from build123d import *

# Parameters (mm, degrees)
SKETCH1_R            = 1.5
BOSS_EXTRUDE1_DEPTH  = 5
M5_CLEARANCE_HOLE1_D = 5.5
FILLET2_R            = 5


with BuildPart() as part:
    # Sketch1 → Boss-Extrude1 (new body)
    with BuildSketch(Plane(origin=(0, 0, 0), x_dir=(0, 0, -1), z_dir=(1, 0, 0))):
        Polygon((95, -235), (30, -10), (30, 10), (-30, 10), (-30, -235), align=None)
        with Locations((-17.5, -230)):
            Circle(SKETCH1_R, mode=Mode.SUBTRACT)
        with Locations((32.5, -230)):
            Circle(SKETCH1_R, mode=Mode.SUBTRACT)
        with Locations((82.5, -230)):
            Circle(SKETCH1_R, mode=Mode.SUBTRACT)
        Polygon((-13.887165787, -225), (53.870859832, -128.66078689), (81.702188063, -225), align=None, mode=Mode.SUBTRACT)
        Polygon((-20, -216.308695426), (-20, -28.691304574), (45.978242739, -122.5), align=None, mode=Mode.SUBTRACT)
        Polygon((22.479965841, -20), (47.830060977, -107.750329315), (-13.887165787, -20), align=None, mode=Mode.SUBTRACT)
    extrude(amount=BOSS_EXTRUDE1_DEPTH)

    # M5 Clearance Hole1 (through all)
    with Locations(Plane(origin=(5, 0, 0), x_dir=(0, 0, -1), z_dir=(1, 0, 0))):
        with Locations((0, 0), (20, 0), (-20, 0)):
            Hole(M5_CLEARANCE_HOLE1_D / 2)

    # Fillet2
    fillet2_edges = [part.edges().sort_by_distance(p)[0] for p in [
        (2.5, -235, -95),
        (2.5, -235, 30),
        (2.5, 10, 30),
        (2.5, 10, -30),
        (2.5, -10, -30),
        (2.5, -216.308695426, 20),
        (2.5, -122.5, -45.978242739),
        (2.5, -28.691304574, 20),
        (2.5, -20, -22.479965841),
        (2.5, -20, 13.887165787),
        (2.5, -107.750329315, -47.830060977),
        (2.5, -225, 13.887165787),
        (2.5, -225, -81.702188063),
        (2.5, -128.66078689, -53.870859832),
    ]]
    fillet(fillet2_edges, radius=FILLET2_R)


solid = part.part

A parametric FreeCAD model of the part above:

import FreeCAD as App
import Part
import Sketcher


def edges_at(feature, points):
    """Names of the edges that pass closest to the given points."""
    edges = feature.Shape.Edges
    near = lambda p: min(range(len(edges)), key=lambda i: edges[i].distToShape(Part.Vertex(*p))[0])
    return sorted({f"Edge{near(p) + 1}" for p in points})


def add_polygon(sketch, points):
    """Adds a closed chain of lines whose ends are joined by coincident constraints."""
    first, n = sketch.GeometryCount, len(points)
    for a, b in zip(points, points[1:] + points[:1]):
        sketch.addGeometry(Part.LineSegment(App.Vector(*a, 0), App.Vector(*b, 0)), False)
    for i in range(n):
        sketch.addConstraint(Sketcher.Constraint("Coincident", first + i, 2, first + (i + 1) % n, 1))

doc = App.newDocument("Part")
params = doc.addObject("Spreadsheet::Sheet", "Params")
for row, (alias, value) in enumerate([
    ("sketch1_diameter", "3 mm"),
    ("sketch1_width", "20 mm"),
    ("sketch1_width2", "245 mm"),
    ("sketch1_height", "60 mm"),
    ("sketch1_height2", "125 mm"),
    ("pad1_length", "5 mm"),
    ("sketch2_diameter", "5.5 mm"),
    ("hole_diameter", "5.5 mm"),
    ("fillet_radius", "5 mm"),
], start=1):
    params.set(f"A{row}", alias)
    params.set(f"B{row}", "=" + value)
    params.setAlias(f"B{row}", alias)

body = doc.addObject("PartDesign::Body", "Body")

# Sketch on YZ plane
sketch1 = body.newObject("Sketcher::SketchObject", "Sketch")
sketch1.AttachmentSupport = (doc.getObject("YZ_Plane"), [""])
sketch1.MapMode = "FlatFace"
add_polygon(sketch1, [(-235, -95), (-10, -30), (10, -30), (10, 30), (-235, 30)])  # lines 0-4
sketch1.addGeometry(Part.Circle(App.Vector(-230, 17.5, 0), App.Vector(0, 0, 1), 1.5), False)  # 5
sketch1.addGeometry(Part.Circle(App.Vector(-230, -32.5, 0), App.Vector(0, 0, 1), 1.5), False)  # 6
sketch1.addGeometry(Part.Circle(App.Vector(-230, -82.5, 0), App.Vector(0, 0, 1), 1.5), False)  # 7
add_polygon(sketch1, [(-225, -81.7), (-225, 13.9), (-128.7, -53.9)])  # lines 8-10
add_polygon(sketch1, [(-122.5, -46), (-216.3, 20), (-28.7, 20)])  # lines 11-13
add_polygon(sketch1, [(-20, 13.9), (-20, -22.5), (-107.8, -47.8)])  # lines 14-16
sketch1.addConstraint(Sketcher.Constraint("Horizontal", 1))
sketch1.addConstraint(Sketcher.Constraint("Vertical", 2))
sketch1.addConstraint(Sketcher.Constraint("Horizontal", 3))
sketch1.addConstraint(Sketcher.Constraint("Vertical", 4))
sketch1.addConstraint(Sketcher.Constraint("Vertical", 8))
sketch1.addConstraint(Sketcher.Constraint("Horizontal", 12))
sketch1.addConstraint(Sketcher.Constraint("Vertical", 14))
sketch1.addConstraint(Sketcher.Constraint("Equal", 5, 6))
sketch1.addConstraint(Sketcher.Constraint("Equal", 6, 7))
sketch1.addConstraint(Sketcher.Constraint("Symmetric", 0, 2, 2, 2, -1, 1))
sketch1.addConstraint(Sketcher.Constraint("Parallel", 0, 10))
sketch1.addConstraint(Sketcher.Constraint("Parallel", 9, 11))
sketch1.addConstraint(Sketcher.Constraint("Parallel", 10, 15))
sketch1.addConstraint(Sketcher.Constraint("Parallel", 13, 16))
sketch1.addConstraint(Sketcher.Constraint("Horizontal", 8, 2, 16, 2))
sketch1.addConstraint(Sketcher.Constraint("Vertical", 5, 3, 6, 3))
sketch1.addConstraint(Sketcher.Constraint("Vertical", 6, 3, 7, 3))
sketch1.addConstraint(Sketcher.Constraint("Equal", 11, 13))
sketch1.addConstraint(Sketcher.Constraint("Diameter", 5, 3.0))
sketch1.addConstraint(Sketcher.Constraint("DistanceX", 1, 1, 1, 2, 20.0))
sketch1.addConstraint(Sketcher.Constraint("DistanceX", 3, 2, 3, 1, 245.0))
sketch1.addConstraint(Sketcher.Constraint("DistanceY", 2, 1, 2, 2, 60.0))
sketch1.addConstraint(Sketcher.Constraint("DistanceY", 4, 2, 4, 1, 125.0))
sketch1.addConstraint(Sketcher.Constraint("DistanceX", 5, 3, -1, 1, 230.0))
sketch1.addConstraint(Sketcher.Constraint("DistanceX", 8, 2, -1, 1, 225.0))
sketch1.addConstraint(Sketcher.Constraint("DistanceY", -1, 1, 11, 2, 20.0))
sketch1.addConstraint(Sketcher.Constraint("DistanceX", 14, 2, -1, 1, 20.0))
sketch1.addConstraint(Sketcher.Constraint("DistanceY", 6, 3, 5, 3, 50.0))
sketch1.addConstraint(Sketcher.Constraint("DistanceY", 7, 3, 6, 3, 50.0))
sketch1.addConstraint(Sketcher.Constraint("DistanceY", -1, 1, 5, 3, 17.5))
sketch1.addConstraint(Sketcher.Constraint("DistanceX", 13, 2, -1, 1, 122.5))
sketch1.addConstraint(Sketcher.Constraint("Distance", 11, 114.687401))
sketch1.addConstraint(Sketcher.Constraint("DistanceX", 12, 1, 12, 2, 187.617391))
sketch1.addConstraint(Sketcher.Constraint("DistanceY", 14, 2, 14, 1, 36.367132))
sketch1.addConstraint(Sketcher.Constraint("DistanceY", 9, 2, 15, 2, 6.040799))
sketch1.addConstraint(Sketcher.Constraint("DistanceY", 9, 2, -1, 1, 53.87086))
sketch1.setExpression("Constraints[32]", "Params.sketch1_diameter")
sketch1.setExpression("Constraints[33]", "Params.sketch1_width")
sketch1.setExpression("Constraints[34]", "Params.sketch1_width2")
sketch1.setExpression("Constraints[35]", "Params.sketch1_height")
sketch1.setExpression("Constraints[36]", "Params.sketch1_height2")
pad1 = body.newObject("PartDesign::Pad", "Pad")
pad1.Profile = sketch1
pad1.setExpression("Length", "Params.pad1_length")

# Sketch on YZ plane
sketch2 = body.newObject("Sketcher::SketchObject", "Sketch001")
sketch2.AttachmentSupport = (doc.getObject("YZ_Plane"), [""])
sketch2.MapMode = "FlatFace"
sketch2.AttachmentOffset = App.Placement(App.Vector(0, 0, 5), App.Rotation())
sketch2.addGeometry(Part.Circle(App.Vector(0, 0, 0), App.Vector(0, 0, 1), 2.8), False)
sketch2.addGeometry(Part.Circle(App.Vector(0, -20, 0), App.Vector(0, 0, 1), 2.8), False)
sketch2.addGeometry(Part.Circle(App.Vector(0, 20, 0), App.Vector(0, 0, 1), 2.8), False)
sketch2.addConstraint(Sketcher.Constraint("Coincident", 0, 3, -1, 1))
sketch2.addConstraint(Sketcher.Constraint("Equal", 0, 1))
sketch2.addConstraint(Sketcher.Constraint("Equal", 1, 2))
sketch2.addConstraint(Sketcher.Constraint("Symmetric", 1, 3, 2, 3, -1, 1))
sketch2.addConstraint(Sketcher.Constraint("PointOnObject", 1, 3, -2))
sketch2.addConstraint(Sketcher.Constraint("Diameter", 0, 5.5))
sketch2.addConstraint(Sketcher.Constraint("DistanceY", 1, 3, -1, 1, 20.0))
sketch2.setExpression("Constraints[5]", "Params.sketch2_diameter")
doc.recompute()
hole = body.newObject("PartDesign::Hole", "Hole")
hole.Profile = sketch2
hole.ThreadType = "None"
hole.setExpression("Diameter", "Params.hole_diameter")
hole.DepthType = "ThroughAll"
doc.recompute()

fillet = body.newObject("PartDesign::Fillet", "Fillet")
fillet.Base = (hole, edges_at(hole, [
    (2.5, -235, -95),
    (2.5, -235, 30),
    (2.5, 10, 30),
    (2.5, 10, -30),
    (2.5, -10, -30),
    (2.5, -216.309, 20),
    (2.5, -122.5, -45.978),
    (2.5, -28.691, 20),
    (2.5, -20, -22.48),
    (2.5, -20, 13.887),
    (2.5, -107.75, -47.83),
    (2.5, -225, 13.887),
    (2.5, -225, -81.702),
    (2.5, -128.661, -53.871),
]))
fillet.setExpression("Radius", "Params.fillet_radius")

doc.recompute()
